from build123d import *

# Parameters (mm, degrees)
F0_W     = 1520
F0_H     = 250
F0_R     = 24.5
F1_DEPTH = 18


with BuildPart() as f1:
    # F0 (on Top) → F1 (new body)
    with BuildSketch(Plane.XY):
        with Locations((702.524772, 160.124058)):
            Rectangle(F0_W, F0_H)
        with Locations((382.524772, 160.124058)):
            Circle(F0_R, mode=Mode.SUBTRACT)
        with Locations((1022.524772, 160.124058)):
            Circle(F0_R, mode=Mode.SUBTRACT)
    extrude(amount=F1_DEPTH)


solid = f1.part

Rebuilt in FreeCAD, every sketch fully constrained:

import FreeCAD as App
import Part
import Sketcher

doc = App.newDocument("Part")
body = doc.addObject("PartDesign::Body", "Body")

sketch1 = body.newObject("Sketcher::SketchObject", "Sketch")
sketch1.AttachmentSupport = (doc.getObject("XY_Plane"), [""])
sketch1.MapMode = "FlatFace"
sketch1.addGeometry([
    Part.LineSegment(App.Vector(-57, 285, 0), App.Vector(-57, 35, 0)),
    Part.LineSegment(App.Vector(-57, 35, 0), App.Vector(1463, 35, 0)),
    Part.LineSegment(App.Vector(1463, 35, 0), App.Vector(1463, 285, 0)),
    Part.LineSegment(App.Vector(1463, 285, 0), App.Vector(-57, 285, 0)),
    Part.Circle(App.Vector(383, 160, 0), App.Vector(0, 0, 1), 24),
    Part.Circle(App.Vector(1023, 160, 0), App.Vector(0, 0, 1), 24),
], False)
sketch1.addConstraint([
    Sketcher.Constraint("Coincident", 0, 2, 1, 1),
    Sketcher.Constraint("Coincident", 1, 2, 2, 1),
    Sketcher.Constraint("Coincident", 2, 2, 3, 1),
    Sketcher.Constraint("Coincident", 3, 2, 0, 1),
    Sketcher.Constraint("Vertical", 0),
    Sketcher.Constraint("Horizontal", 1),
    Sketcher.Constraint("Vertical", 2),
    Sketcher.Constraint("Horizontal", 3),
    Sketcher.Constraint("Equal", 4, 5),
    Sketcher.Constraint("Horizontal", 4, 3, 5, 3),
    Sketcher.Constraint("Diameter", 4, 49.0),
    Sketcher.Constraint("DistanceX", 1, 1, 1, 2, 1520.0),
    Sketcher.Constraint("DistanceY", 0, 2, 0, 1, 250.0),
    Sketcher.Constraint("DistanceX", 4, 3, 5, 3, 640.0),
    Sketcher.Constraint("DistanceX", 0, 2, 4, 3, 440.0),
    Sketcher.Constraint("DistanceY", 0, 2, 4, 3, 125.0),
    Sketcher.Constraint("DistanceX", -1, 1, 4, 3, 382.524772),
    Sketcher.Constraint("DistanceY", -1, 1, 4, 3, 160.124058),
])
pad1 = body.newObject("PartDesign::Pad", "Pad")
pad1.Profile = sketch1
pad1.Length = 18

doc.recompute()
